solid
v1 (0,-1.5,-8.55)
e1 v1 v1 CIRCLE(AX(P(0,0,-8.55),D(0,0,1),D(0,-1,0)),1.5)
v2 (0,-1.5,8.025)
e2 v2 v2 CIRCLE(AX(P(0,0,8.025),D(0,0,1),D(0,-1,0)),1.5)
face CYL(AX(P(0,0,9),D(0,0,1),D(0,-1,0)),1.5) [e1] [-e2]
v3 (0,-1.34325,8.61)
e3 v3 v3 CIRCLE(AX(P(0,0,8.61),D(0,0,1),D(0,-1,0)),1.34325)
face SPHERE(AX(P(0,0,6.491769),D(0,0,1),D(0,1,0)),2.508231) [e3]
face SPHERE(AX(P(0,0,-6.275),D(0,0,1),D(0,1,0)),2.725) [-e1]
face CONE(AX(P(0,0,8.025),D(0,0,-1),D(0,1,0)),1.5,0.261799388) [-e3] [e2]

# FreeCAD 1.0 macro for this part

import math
import FreeCAD as App
import Part
import Sketcher
from FreeCAD import Vector
Q = App.Units.Quantity

doc = App.newDocument("Part")
body = doc.addObject("PartDesign::Body", "Body")

# Sketch on YZ plane
sketch1 = doc.addObject("Sketcher::SketchObject", "Sketch")
body.addObject(sketch1)
sketch1.AttachmentSupport = (doc.YZ_Plane, [""])
sketch1.MapMode = "FlatFace"
sketch1.addGeometry([
    Part.LineSegment(Vector(0, 9, 0), Vector(0, -9, 0)),  # 0
    Part.ArcOfCircle(Part.Circle(Vector(0, -6.3, 0), Vector(0, 0, 1), 2.7), math.radians(-90), math.radians(-57)),  # 1
    Part.LineSegment(Vector(1.5, -8.6, 0), Vector(1.5, 8, 0)),  # 2
    Part.LineSegment(Vector(1.5, 8, 0), Vector(1.3, 8.6, 0)),  # 3
    Part.ArcOfCircle(Part.Circle(Vector(0, 6.5, 0), Vector(0, 0, 1), 2.5), math.radians(58), math.radians(90)),  # 4
], False)
sketch1.addConstraint([
    Sketcher.Constraint("Coincident", 0, 2, 1, 1),
    Sketcher.Constraint("Coincident", 1, 2, 2, 1),
    Sketcher.Constraint("Coincident", 2, 2, 3, 1),
    Sketcher.Constraint("Coincident", 3, 2, 4, 1),
    Sketcher.Constraint("Coincident", 4, 2, 0, 1),
    Sketcher.Constraint("Vertical", 0),
    Sketcher.Constraint("Vertical", 2),
    Sketcher.Constraint("Symmetric", 0, 2, 4, 2, -1, 1),
    Sketcher.Constraint("PointOnObject", 1, 3, -2),
    Sketcher.Constraint("PointOnObject", 4, 3, -2),
    Sketcher.Constraint("DistanceY", 0, 2, 0, 1, 18.0),
    Sketcher.Constraint("Angle", 3, Q("105 deg")),
    Sketcher.Constraint("Radius", 1, 2.725),
    Sketcher.Constraint("DistanceX", -1, 1, 1, 2, 1.5),
    Sketcher.Constraint("DistanceY", 1, 3, 2, 2, 14.3),
    Sketcher.Constraint("DistanceY", -1, 1, 3, 2, 8.61),
])
revolution = doc.addObject("PartDesign::Revolution", "Revolution")
body.addObject(revolution)
revolution.Profile = sketch1
revolution.ReferenceAxis = (sketch1, ["V_Axis"])
revolution.Angle = 360

doc.recompute()
